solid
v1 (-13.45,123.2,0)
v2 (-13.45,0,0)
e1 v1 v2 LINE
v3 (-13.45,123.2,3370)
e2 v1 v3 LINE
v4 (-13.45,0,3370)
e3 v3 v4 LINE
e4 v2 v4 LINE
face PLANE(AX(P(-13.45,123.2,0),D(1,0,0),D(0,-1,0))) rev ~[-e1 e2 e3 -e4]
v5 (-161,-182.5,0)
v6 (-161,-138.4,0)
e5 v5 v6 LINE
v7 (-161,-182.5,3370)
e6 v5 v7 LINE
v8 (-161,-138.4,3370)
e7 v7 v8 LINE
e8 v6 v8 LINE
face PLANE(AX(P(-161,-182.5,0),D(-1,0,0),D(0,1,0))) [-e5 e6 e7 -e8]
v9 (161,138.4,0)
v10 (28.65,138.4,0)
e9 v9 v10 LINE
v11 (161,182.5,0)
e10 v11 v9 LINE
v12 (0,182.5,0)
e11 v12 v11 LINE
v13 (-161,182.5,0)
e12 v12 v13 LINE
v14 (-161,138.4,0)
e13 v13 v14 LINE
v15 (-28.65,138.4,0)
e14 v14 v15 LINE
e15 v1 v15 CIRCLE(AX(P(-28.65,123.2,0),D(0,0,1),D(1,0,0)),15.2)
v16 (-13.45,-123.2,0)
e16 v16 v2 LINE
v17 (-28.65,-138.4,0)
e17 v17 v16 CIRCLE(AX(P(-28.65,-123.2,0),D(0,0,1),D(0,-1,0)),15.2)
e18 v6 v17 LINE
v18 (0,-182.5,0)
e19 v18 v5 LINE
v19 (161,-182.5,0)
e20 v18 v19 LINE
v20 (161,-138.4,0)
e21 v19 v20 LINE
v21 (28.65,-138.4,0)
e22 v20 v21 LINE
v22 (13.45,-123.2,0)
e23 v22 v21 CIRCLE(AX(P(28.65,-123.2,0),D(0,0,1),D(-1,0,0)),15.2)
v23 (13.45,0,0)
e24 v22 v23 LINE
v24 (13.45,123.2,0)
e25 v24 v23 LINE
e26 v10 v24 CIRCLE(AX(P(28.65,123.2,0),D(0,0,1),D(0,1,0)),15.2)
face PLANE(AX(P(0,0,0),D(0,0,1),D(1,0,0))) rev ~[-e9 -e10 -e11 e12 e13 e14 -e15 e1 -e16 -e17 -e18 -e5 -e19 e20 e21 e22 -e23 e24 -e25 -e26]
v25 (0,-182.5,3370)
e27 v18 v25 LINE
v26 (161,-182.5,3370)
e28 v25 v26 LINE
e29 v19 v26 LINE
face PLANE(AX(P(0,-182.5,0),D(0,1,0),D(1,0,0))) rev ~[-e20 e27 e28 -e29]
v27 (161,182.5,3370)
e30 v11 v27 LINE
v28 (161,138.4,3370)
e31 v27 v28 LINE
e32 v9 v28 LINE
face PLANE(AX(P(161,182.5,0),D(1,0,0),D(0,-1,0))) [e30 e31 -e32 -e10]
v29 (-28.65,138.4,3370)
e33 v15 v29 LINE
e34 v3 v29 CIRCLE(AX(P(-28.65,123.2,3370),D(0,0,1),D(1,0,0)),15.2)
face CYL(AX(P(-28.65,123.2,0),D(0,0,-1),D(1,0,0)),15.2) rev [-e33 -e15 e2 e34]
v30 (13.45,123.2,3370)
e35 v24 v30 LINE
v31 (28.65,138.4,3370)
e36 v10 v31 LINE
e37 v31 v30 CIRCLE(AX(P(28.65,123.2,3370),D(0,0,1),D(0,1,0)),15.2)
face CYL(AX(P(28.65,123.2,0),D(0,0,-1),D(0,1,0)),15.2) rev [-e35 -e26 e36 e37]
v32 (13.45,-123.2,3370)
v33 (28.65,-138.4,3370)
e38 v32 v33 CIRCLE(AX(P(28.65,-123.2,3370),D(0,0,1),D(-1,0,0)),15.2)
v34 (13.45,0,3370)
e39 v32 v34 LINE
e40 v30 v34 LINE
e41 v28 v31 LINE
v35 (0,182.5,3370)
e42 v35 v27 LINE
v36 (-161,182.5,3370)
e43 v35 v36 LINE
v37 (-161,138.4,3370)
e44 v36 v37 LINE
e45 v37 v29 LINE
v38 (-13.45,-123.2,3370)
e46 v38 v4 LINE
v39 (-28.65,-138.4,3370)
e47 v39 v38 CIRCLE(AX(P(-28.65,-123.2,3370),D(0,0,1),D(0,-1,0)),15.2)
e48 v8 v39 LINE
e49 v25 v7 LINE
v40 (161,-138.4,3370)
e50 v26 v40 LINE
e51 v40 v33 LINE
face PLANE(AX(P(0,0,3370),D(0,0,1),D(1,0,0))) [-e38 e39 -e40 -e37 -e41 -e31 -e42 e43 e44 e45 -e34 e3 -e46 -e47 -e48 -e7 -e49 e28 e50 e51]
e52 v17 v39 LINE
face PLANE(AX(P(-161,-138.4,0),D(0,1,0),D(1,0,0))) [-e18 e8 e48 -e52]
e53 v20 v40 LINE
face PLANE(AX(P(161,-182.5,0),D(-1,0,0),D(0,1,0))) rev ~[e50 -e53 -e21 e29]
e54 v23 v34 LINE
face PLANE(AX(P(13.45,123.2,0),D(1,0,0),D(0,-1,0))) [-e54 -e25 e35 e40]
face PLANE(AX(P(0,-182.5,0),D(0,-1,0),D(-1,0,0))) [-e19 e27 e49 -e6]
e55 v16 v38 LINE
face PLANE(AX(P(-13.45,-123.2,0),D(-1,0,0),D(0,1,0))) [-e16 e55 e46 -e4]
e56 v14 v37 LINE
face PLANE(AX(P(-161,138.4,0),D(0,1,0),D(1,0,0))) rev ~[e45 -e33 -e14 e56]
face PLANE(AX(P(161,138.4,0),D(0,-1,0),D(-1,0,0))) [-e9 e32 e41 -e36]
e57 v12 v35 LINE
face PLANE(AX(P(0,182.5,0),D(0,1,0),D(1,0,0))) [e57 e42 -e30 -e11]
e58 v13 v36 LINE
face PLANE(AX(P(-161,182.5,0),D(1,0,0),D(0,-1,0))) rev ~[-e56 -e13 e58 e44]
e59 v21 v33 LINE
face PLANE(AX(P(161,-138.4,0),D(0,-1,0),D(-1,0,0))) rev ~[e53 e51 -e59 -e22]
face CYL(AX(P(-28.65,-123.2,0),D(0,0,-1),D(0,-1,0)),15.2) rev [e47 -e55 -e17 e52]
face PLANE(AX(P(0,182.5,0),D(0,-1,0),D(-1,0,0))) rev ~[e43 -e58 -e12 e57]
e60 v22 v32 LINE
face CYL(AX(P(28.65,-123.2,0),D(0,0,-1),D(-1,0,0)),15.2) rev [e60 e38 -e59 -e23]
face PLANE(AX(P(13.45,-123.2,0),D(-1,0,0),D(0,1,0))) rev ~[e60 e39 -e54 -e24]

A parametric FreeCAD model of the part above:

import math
import FreeCAD as App
import Part
import Sketcher
Q = App.Units.Quantity

doc = App.newDocument("Part")
body = doc.addObject("PartDesign::Body", "Body")

sketch1 = body.newObject("Sketcher::SketchObject", "Sketch")
sketch1.AttachmentSupport = (doc.getObject("XY_Plane"), [""])
sketch1.MapMode = "FlatFace"
sketch1.addGeometry([
    Part.LineSegment(App.Vector(-161, -138, 0), App.Vector(-161, -182, 0)),
    Part.LineSegment(App.Vector(-161, -182, 0), App.Vector(161, -182, 0)),
    Part.LineSegment(App.Vector(161, -182, 0), App.Vector(161, -138, 0)),
    Part.LineSegment(App.Vector(161, -138, 0), App.Vector(29, -138, 0)),
    Part.ArcOfCircle(Part.Circle(App.Vector(29, -123, 0), App.Vector(0, 0, 1), 15), math.radians(180), math.radians(270)),
    Part.LineSegment(App.Vector(13, -123, 0), App.Vector(13, 123, 0)),
    Part.ArcOfCircle(Part.Circle(App.Vector(29, 123, 0), App.Vector(0, 0, 1), 15), math.radians(90), math.radians(180)),
    Part.LineSegment(App.Vector(29, 138, 0), App.Vector(161, 138, 0)),
    Part.LineSegment(App.Vector(161, 138, 0), App.Vector(161, 182, 0)),
    Part.LineSegment(App.Vector(161, 182, 0), App.Vector(-161, 182, 0)),
    Part.LineSegment(App.Vector(-161, 182, 0), App.Vector(-161, 138, 0)),
    Part.LineSegment(App.Vector(-161, 138, 0), App.Vector(-29, 138, 0)),
    Part.ArcOfCircle(Part.Circle(App.Vector(-29, 123, 0), App.Vector(0, 0, 1), 15), math.radians(0), math.radians(90)),
    Part.LineSegment(App.Vector(-13, 123, 0), App.Vector(-13, -123, 0)),
    Part.ArcOfCircle(Part.Circle(App.Vector(-29, -123, 0), App.Vector(0, 0, 1), 15), math.radians(-90), math.radians(0)),
    Part.LineSegment(App.Vector(-29, -138, 0), App.Vector(-161, -138, 0)),
], False)
sketch1.addConstraint([
    Sketcher.Constraint("Coincident", 0, 2, 1, 1),
    Sketcher.Constraint("Coincident", 1, 2, 2, 1),
    Sketcher.Constraint("Coincident", 2, 2, 3, 1),
    Sketcher.Constraint("Tangent", 3, 2, 4, 2),
    Sketcher.Constraint("Tangent", 4, 1, 5, 1),
    Sketcher.Constraint("Tangent", 5, 2, 6, 2),
    Sketcher.Constraint("Tangent", 6, 1, 7, 1),
    Sketcher.Constraint("Coincident", 7, 2, 8, 1),
    Sketcher.Constraint("Coincident", 8, 2, 9, 1),
    Sketcher.Constraint("Coincident", 9, 2, 10, 1),
    Sketcher.Constraint("Coincident", 10, 2, 11, 1),
    Sketcher.Constraint("Tangent", 11, 2, 12, 2),
    Sketcher.Constraint("Tangent", 12, 1, 13, 1),
    Sketcher.Constraint("Tangent", 13, 2, 14, 2),
    Sketcher.Constraint("Tangent", 14, 1, 15, 1),
    Sketcher.Constraint("Coincident", 15, 2, 0, 1),
    Sketcher.Constraint("Vertical", 0),
    Sketcher.Constraint("Horizontal", 1),
    Sketcher.Constraint("Vertical", 2),
    Sketcher.Constraint("Horizontal", 3),
    Sketcher.Constraint("Vertical", 5),
    Sketcher.Constraint("Horizontal", 7),
    Sketcher.Constraint("Vertical", 8),
    Sketcher.Constraint("Horizontal", 9),
    Sketcher.Constraint("Vertical", 10),
    Sketcher.Constraint("Horizontal", 11),
    Sketcher.Constraint("Vertical", 13),
    Sketcher.Constraint("Horizontal", 15),
    Sketcher.Constraint("Equal", 4, 6),
    Sketcher.Constraint("Equal", 6, 12),
    Sketcher.Constraint("Equal", 12, 14),
    Sketcher.Constraint("Symmetric", 4, 3, 12, 3, -1, 1),
    Sketcher.Constraint("Symmetric", 0, 2, 8, 2, -1, 1),
    Sketcher.Constraint("Symmetric", 7, 2, 10, 2, -2),
    Sketcher.Constraint("Symmetric", 2, 2, 15, 2, -2),
    Sketcher.Constraint("Radius", 4, Q("15.2 mm")),
    Sketcher.Constraint("DistanceY", 0, 2, 0, 1, Q("44.1 mm")),
    Sketcher.Constraint("DistanceX", 0, 2, -1, 1, Q("161 mm")),
    Sketcher.Constraint("DistanceY", 0, 2, -1, 1, Q("182.5 mm")),
    Sketcher.Constraint("DistanceX", -1, 1, 4, 1, Q("13.45 mm")),
])
pad1 = body.newObject("PartDesign::Pad", "Pad")
pad1.Profile = sketch1
pad1.Length = 3370

doc.recompute()
